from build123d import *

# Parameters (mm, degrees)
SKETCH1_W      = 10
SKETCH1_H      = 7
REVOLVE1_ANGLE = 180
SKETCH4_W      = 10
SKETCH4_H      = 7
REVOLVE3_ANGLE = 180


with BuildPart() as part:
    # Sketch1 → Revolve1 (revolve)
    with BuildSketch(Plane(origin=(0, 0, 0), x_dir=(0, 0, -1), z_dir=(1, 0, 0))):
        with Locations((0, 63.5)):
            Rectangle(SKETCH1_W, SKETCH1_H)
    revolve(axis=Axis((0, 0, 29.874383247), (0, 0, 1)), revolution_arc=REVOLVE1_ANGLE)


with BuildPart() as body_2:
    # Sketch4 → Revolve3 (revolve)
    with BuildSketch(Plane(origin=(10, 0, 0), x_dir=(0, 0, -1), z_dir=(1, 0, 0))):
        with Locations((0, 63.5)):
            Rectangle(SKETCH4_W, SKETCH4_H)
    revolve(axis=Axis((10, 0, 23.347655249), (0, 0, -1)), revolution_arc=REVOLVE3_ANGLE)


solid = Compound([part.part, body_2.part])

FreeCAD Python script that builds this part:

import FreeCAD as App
import Part
import Sketcher
Q = App.Units.Quantity

doc = App.newDocument("Part")
body = doc.addObject("PartDesign::Body", "Body")

# Sketch on YZ plane
sketch1 = doc.addObject("Sketcher::SketchObject", "Sketch")
body.addObject(sketch1)
sketch1.AttachmentSupport = (doc.YZ_Plane, [""])
sketch1.MapMode = "FlatFace"
sketch1.addGeometry(Part.LineSegment(App.Vector(67, 5, 0), App.Vector(60, 5, 0)), False)
sketch1.addGeometry(Part.LineSegment(App.Vector(60, 5, 0), App.Vector(60, -5, 0)), False)
sketch1.addGeometry(Part.LineSegment(App.Vector(60, -5, 0), App.Vector(67, -5, 0)), False)
sketch1.addGeometry(Part.LineSegment(App.Vector(67, -5, 0), App.Vector(67, 5, 0)), False)
sketch1.addConstraint(Sketcher.Constraint("Coincident", 0, 2, 1, 1))
sketch1.addConstraint(Sketcher.Constraint("Coincident", 1, 2, 2, 1))
sketch1.addConstraint(Sketcher.Constraint("Coincident", 2, 2, 3, 1))
sketch1.addConstraint(Sketcher.Constraint("Coincident", 3, 2, 0, 1))
sketch1.addConstraint(Sketcher.Constraint("Horizontal", 0))
sketch1.addConstraint(Sketcher.Constraint("Vertical", 1))
sketch1.addConstraint(Sketcher.Constraint("Horizontal", 2))
sketch1.addConstraint(Sketcher.Constraint("Vertical", 3))
sketch1.addConstraint(Sketcher.Constraint("DistanceX", 0, 2, 0, 1, Q("7 mm")))
sketch1.addConstraint(Sketcher.Constraint("DistanceY", 1, 2, 1, 1, Q("10 mm")))
sketch1.addConstraint(Sketcher.Constraint("DistanceX", -1, 1, 0, 2, Q("60 mm")))
sketch1.addConstraint(Sketcher.Constraint("DistanceY", -1, 1, 0, 2, Q("5 mm")))
revolution = doc.addObject("PartDesign::Revolution", "Revolution")
body.addObject(revolution)
revolution.Profile = sketch1
revolution.ReferenceAxis = (sketch1, ["V_Axis"])
revolution.Angle = 180
body2 = doc.addObject("PartDesign::Body", "Body001")

# Sketch on YZ plane
sketch2 = doc.addObject("Sketcher::SketchObject", "Sketch001")
body2.addObject(sketch2)
sketch2.AttachmentSupport = (doc.getObject("YZ_Plane001"), [""])
sketch2.MapMode = "FlatFace"
sketch2.AttachmentOffset = App.Placement(App.Vector(0, 0, 10), App.Rotation())
sketch2.addGeometry(Part.LineSegment(App.Vector(67, 5, 0), App.Vector(60, 5, 0)), False)
sketch2.addGeometry(Part.LineSegment(App.Vector(60, 5, 0), App.Vector(60, -5, 0)), False)
sketch2.addGeometry(Part.LineSegment(App.Vector(60, -5, 0), App.Vector(67, -5, 0)), False)
sketch2.addGeometry(Part.LineSegment(App.Vector(67, -5, 0), App.Vector(67, 5, 0)), False)
sketch2.addConstraint(Sketcher.Constraint("Coincident", 0, 2, 1, 1))
sketch2.addConstraint(Sketcher.Constraint("Coincident", 1, 2, 2, 1))
sketch2.addConstraint(Sketcher.Constraint("Coincident", 2, 2, 3, 1))
sketch2.addConstraint(Sketcher.Constraint("Coincident", 3, 2, 0, 1))
sketch2.addConstraint(Sketcher.Constraint("Horizontal", 0))
sketch2.addConstraint(Sketcher.Constraint("Vertical", 1))
sketch2.addConstraint(Sketcher.Constraint("Horizontal", 2))
sketch2.addConstraint(Sketcher.Constraint("Vertical", 3))
sketch2.addConstraint(Sketcher.Constraint("DistanceX", 0, 2, 0, 1, Q("7 mm")))
sketch2.addConstraint(Sketcher.Constraint("DistanceY", 1, 2, 1, 1, Q("10 mm")))
sketch2.addConstraint(Sketcher.Constraint("DistanceX", -1, 1, 0, 2, Q("60 mm")))
sketch2.addConstraint(Sketcher.Constraint("DistanceY", -1, 1, 0, 2, Q("5 mm")))
revolution2 = doc.addObject("PartDesign::Revolution", "Revolution001")
body2.addObject(revolution2)
revolution2.Profile = sketch2
revolution2.ReferenceAxis = (sketch2, ["V_Axis"])
revolution2.Angle = 180
revolution2.Reversed = True

doc.recompute()
